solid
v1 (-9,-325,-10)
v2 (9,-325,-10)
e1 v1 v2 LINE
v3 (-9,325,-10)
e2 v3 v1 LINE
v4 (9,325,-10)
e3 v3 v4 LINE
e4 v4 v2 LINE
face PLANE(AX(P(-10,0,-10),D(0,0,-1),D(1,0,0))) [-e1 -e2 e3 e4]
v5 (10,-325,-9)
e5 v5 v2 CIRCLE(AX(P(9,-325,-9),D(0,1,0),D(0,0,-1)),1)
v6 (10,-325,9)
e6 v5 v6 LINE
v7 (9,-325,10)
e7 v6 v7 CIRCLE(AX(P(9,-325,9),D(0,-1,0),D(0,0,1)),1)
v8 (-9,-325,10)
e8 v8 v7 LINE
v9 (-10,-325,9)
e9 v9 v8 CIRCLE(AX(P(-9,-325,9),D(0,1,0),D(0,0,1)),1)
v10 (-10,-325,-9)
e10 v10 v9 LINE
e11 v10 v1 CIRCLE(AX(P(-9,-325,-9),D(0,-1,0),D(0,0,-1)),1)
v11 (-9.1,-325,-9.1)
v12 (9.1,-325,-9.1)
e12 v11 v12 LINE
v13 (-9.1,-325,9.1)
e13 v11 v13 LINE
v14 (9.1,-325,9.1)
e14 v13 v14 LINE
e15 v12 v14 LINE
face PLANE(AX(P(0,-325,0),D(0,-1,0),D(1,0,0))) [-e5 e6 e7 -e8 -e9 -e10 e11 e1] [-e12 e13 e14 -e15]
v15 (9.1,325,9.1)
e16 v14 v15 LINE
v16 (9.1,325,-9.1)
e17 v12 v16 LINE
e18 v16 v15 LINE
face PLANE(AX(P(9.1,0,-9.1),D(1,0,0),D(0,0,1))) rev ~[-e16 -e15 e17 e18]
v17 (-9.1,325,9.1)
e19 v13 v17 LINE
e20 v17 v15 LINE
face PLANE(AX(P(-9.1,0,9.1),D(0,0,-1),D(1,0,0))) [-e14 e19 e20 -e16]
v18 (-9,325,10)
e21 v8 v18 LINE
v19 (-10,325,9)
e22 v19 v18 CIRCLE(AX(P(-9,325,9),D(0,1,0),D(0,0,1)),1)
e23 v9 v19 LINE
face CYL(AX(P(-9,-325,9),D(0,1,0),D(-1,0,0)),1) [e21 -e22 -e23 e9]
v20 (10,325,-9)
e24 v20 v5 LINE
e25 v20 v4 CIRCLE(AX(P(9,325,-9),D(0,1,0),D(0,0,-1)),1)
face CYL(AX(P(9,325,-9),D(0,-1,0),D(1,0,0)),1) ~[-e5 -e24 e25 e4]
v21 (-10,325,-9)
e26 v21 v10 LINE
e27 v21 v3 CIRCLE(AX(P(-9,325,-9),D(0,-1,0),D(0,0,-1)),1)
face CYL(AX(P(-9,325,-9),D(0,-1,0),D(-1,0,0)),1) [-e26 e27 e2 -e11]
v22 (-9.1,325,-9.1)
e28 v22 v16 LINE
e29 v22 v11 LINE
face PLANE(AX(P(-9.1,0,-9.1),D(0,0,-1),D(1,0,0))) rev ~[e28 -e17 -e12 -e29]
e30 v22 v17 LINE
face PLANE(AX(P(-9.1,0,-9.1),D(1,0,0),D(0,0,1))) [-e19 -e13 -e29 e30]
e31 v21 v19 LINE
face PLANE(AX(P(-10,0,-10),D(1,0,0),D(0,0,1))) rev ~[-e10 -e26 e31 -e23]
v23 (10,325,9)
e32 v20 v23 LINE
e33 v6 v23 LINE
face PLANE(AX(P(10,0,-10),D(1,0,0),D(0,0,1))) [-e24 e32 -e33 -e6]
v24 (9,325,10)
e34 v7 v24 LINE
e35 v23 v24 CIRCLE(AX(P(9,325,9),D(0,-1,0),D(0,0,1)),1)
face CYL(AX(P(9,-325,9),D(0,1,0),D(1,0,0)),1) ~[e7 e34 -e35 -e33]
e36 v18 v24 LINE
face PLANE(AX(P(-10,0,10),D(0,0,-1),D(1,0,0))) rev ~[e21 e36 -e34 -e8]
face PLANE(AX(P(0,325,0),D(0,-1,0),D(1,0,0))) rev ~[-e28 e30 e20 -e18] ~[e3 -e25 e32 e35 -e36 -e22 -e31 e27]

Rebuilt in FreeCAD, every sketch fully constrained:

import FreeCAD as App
import Part
import Sketcher
from FreeCAD import Vector


def edges_at(feature, points):
    """Names of the edges that pass closest to the given points."""
    edges = feature.Shape.Edges
    near = lambda p: min(range(len(edges)), key=lambda i: edges[i].distToShape(Part.Vertex(*p))[0])
    return sorted({f"Edge{near(p) + 1}" for p in points})


def add_polygon(sketch, points):
    """Adds a closed chain of lines whose ends are joined by coincident constraints."""
    first, n = sketch.GeometryCount, len(points)
    for a, b in zip(points, points[1:] + points[:1]):
        sketch.addGeometry(Part.LineSegment(App.Vector(*a, 0), App.Vector(*b, 0)), False)
    for i in range(n):
        sketch.addConstraint(Sketcher.Constraint("Coincident", first + i, 2, first + (i + 1) % n, 1))

doc = App.newDocument("Part")
params = doc.addObject("Spreadsheet::Sheet", "Params")
for row, (alias, value) in enumerate([
    ("sketch1_width", "20 mm"),
    ("sketch1_width2", "18.2 mm"),
    ("pad1_length", "650 mm"),
    ("fillet_radius", "1 mm"),
], start=1):
    params.set(f"A{row}", alias)
    params.set(f"B{row}", "=" + value)
    params.setAlias(f"B{row}", alias)

body = doc.addObject("PartDesign::Body", "Body")

# Sketch on XZ plane
sketch1 = body.newObject("Sketcher::SketchObject", "Sketch")
sketch1.AttachmentSupport = (doc.getObject("XZ_Plane"), [""])
sketch1.MapMode = "FlatFace"
add_polygon(sketch1, [(-10, 10), (-10, -10), (10, -10), (10, 10)])  # lines 0-3
add_polygon(sketch1, [(9.1, -9.1), (-9.1, -9.1), (-9.1, 9.1), (9.1, 9.1)])  # lines 4-7
sketch1.addConstraint([
    Sketcher.Constraint("Vertical", 0),
    Sketcher.Constraint("Horizontal", 1),
    Sketcher.Constraint("Vertical", 2),
    Sketcher.Constraint("Horizontal", 3),
    Sketcher.Constraint("Horizontal", 4),
    Sketcher.Constraint("Vertical", 5),
    Sketcher.Constraint("Horizontal", 6),
    Sketcher.Constraint("Vertical", 7),
    Sketcher.Constraint("Symmetric", 0, 2, 2, 2, -1, 1),
    Sketcher.Constraint("Symmetric", 4, 2, 6, 2, -1, 1),
    Sketcher.Constraint("Equal", 3, 0),
    Sketcher.Constraint("Equal", 6, 5),
    Sketcher.Constraint("DistanceX", 1, 1, 1, 2, 20.0),
    Sketcher.Constraint("DistanceX", 4, 2, 4, 1, 18.2),
])
sketch1.setExpression("Constraints[20]", "Params.sketch1_width")
sketch1.setExpression("Constraints[21]", "Params.sketch1_width2")
pad1 = body.newObject("PartDesign::Pad", "Pad")
pad1.Profile = sketch1
pad1.setExpression("Length", "Params.pad1_length")
pad1.Midplane = True
doc.recompute()

fillet = body.newObject("PartDesign::Fillet", "Fillet")
fillet.Base = (pad1, edges_at(pad1, [
    (10, 0, 10),
    (-10, 0, 10),
    (10, 0, -10),
    (-10, 0, -10),
]))
fillet.setExpression("Radius", "Params.fillet_radius")

doc.recompute()
